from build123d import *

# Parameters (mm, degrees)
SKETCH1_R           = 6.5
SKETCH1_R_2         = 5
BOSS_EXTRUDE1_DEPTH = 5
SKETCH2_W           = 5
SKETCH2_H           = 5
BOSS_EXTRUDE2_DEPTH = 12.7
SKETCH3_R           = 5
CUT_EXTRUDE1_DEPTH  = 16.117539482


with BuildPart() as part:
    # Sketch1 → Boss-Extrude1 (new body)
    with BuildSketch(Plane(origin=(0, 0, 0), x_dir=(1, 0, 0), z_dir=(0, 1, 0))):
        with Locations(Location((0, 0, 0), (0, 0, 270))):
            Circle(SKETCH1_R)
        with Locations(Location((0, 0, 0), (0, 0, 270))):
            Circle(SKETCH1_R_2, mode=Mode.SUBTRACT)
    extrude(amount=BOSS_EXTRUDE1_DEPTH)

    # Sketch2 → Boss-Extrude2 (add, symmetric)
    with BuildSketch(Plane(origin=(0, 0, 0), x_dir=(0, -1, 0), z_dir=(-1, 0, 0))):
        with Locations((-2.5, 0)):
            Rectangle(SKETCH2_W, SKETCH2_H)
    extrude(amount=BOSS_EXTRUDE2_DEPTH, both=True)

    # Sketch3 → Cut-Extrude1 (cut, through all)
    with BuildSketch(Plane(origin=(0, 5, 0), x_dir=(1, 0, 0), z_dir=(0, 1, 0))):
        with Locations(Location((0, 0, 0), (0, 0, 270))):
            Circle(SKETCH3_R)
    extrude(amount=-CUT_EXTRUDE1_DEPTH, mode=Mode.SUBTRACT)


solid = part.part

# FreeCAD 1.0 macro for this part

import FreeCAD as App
import Part
import Sketcher
Q = App.Units.Quantity


def add_polygon(sketch, points):
    """Adds a closed chain of lines whose ends are joined by coincident constraints."""
    first, n = sketch.GeometryCount, len(points)
    for a, b in zip(points, points[1:] + points[:1]):
        sketch.addGeometry(Part.LineSegment(App.Vector(*a, 0), App.Vector(*b, 0)), False)
    for i in range(n):
        sketch.addConstraint(Sketcher.Constraint("Coincident", first + i, 2, first + (i + 1) % n, 1))

doc = App.newDocument("Part")
body = doc.addObject("PartDesign::Body", "Body")

sketch1 = body.newObject("Sketcher::SketchObject", "Sketch")
sketch1.AttachmentSupport = (doc.getObject("XZ_Plane"), [""])
sketch1.MapMode = "FlatFace"
sketch1.addGeometry([
    Part.Circle(App.Vector(0, 0, 0), App.Vector(0, 0, 1), 6.5),
    Part.Circle(App.Vector(0, 0, 0), App.Vector(0, 0, 1), 5),
], False)
sketch1.addConstraint([
    Sketcher.Constraint("Coincident", 0, 3, -1, 1),
    Sketcher.Constraint("Coincident", 1, 3, -1, 1),
    Sketcher.Constraint("Diameter", 0, Q("13 mm")),
    Sketcher.Constraint("Diameter", 1, Q("10 mm")),
])
pad1 = body.newObject("PartDesign::Pad", "Pad")
pad1.Profile = sketch1
pad1.Length = 5
pad1.Reversed = True

sketch2 = body.newObject("Sketcher::SketchObject", "Sketch001")
sketch2.AttachmentSupport = (doc.getObject("YZ_Plane"), [""])
sketch2.MapMode = "FlatFace"
add_polygon(sketch2, [(5, 2.5), (5, -2.5), (0, -2.5), (0, 2.5)])
sketch2.addConstraint([
    Sketcher.Constraint("Vertical", 0),
    Sketcher.Constraint("Horizontal", 1),
    Sketcher.Constraint("Vertical", 2),
    Sketcher.Constraint("Horizontal", 3),
    Sketcher.Constraint("Symmetric", 1, 2, 2, 2, -1, 1),
    Sketcher.Constraint("Equal", 3, 0),
    Sketcher.Constraint("DistanceX", 1, 2, 1, 1, Q("5 mm")),
])
pad2 = body.newObject("PartDesign::Pad", "Pad001")
pad2.Profile = sketch2
pad2.Length = 25.4
pad2.Midplane = True

sketch3 = body.newObject("Sketcher::SketchObject", "Sketch002")
sketch3.AttachmentSupport = (doc.getObject("XZ_Plane"), [""])
sketch3.MapMode = "FlatFace"
sketch3.AttachmentOffset = App.Placement(App.Vector(0, 0, -5), App.Rotation())
sketch3.addGeometry(Part.Circle(App.Vector(0, 0, 0), App.Vector(0, 0, 1), 5), False)
sketch3.addConstraint([
    Sketcher.Constraint("Coincident", 0, 3, -1, 1),
    Sketcher.Constraint("Diameter", 0, Q("10 mm")),
])
pocket1 = body.newObject("PartDesign::Pocket", "Pocket")
pocket1.Profile = sketch3
pocket1.Type = "ThroughAll"
pocket1.Reversed = True

doc.recompute()
